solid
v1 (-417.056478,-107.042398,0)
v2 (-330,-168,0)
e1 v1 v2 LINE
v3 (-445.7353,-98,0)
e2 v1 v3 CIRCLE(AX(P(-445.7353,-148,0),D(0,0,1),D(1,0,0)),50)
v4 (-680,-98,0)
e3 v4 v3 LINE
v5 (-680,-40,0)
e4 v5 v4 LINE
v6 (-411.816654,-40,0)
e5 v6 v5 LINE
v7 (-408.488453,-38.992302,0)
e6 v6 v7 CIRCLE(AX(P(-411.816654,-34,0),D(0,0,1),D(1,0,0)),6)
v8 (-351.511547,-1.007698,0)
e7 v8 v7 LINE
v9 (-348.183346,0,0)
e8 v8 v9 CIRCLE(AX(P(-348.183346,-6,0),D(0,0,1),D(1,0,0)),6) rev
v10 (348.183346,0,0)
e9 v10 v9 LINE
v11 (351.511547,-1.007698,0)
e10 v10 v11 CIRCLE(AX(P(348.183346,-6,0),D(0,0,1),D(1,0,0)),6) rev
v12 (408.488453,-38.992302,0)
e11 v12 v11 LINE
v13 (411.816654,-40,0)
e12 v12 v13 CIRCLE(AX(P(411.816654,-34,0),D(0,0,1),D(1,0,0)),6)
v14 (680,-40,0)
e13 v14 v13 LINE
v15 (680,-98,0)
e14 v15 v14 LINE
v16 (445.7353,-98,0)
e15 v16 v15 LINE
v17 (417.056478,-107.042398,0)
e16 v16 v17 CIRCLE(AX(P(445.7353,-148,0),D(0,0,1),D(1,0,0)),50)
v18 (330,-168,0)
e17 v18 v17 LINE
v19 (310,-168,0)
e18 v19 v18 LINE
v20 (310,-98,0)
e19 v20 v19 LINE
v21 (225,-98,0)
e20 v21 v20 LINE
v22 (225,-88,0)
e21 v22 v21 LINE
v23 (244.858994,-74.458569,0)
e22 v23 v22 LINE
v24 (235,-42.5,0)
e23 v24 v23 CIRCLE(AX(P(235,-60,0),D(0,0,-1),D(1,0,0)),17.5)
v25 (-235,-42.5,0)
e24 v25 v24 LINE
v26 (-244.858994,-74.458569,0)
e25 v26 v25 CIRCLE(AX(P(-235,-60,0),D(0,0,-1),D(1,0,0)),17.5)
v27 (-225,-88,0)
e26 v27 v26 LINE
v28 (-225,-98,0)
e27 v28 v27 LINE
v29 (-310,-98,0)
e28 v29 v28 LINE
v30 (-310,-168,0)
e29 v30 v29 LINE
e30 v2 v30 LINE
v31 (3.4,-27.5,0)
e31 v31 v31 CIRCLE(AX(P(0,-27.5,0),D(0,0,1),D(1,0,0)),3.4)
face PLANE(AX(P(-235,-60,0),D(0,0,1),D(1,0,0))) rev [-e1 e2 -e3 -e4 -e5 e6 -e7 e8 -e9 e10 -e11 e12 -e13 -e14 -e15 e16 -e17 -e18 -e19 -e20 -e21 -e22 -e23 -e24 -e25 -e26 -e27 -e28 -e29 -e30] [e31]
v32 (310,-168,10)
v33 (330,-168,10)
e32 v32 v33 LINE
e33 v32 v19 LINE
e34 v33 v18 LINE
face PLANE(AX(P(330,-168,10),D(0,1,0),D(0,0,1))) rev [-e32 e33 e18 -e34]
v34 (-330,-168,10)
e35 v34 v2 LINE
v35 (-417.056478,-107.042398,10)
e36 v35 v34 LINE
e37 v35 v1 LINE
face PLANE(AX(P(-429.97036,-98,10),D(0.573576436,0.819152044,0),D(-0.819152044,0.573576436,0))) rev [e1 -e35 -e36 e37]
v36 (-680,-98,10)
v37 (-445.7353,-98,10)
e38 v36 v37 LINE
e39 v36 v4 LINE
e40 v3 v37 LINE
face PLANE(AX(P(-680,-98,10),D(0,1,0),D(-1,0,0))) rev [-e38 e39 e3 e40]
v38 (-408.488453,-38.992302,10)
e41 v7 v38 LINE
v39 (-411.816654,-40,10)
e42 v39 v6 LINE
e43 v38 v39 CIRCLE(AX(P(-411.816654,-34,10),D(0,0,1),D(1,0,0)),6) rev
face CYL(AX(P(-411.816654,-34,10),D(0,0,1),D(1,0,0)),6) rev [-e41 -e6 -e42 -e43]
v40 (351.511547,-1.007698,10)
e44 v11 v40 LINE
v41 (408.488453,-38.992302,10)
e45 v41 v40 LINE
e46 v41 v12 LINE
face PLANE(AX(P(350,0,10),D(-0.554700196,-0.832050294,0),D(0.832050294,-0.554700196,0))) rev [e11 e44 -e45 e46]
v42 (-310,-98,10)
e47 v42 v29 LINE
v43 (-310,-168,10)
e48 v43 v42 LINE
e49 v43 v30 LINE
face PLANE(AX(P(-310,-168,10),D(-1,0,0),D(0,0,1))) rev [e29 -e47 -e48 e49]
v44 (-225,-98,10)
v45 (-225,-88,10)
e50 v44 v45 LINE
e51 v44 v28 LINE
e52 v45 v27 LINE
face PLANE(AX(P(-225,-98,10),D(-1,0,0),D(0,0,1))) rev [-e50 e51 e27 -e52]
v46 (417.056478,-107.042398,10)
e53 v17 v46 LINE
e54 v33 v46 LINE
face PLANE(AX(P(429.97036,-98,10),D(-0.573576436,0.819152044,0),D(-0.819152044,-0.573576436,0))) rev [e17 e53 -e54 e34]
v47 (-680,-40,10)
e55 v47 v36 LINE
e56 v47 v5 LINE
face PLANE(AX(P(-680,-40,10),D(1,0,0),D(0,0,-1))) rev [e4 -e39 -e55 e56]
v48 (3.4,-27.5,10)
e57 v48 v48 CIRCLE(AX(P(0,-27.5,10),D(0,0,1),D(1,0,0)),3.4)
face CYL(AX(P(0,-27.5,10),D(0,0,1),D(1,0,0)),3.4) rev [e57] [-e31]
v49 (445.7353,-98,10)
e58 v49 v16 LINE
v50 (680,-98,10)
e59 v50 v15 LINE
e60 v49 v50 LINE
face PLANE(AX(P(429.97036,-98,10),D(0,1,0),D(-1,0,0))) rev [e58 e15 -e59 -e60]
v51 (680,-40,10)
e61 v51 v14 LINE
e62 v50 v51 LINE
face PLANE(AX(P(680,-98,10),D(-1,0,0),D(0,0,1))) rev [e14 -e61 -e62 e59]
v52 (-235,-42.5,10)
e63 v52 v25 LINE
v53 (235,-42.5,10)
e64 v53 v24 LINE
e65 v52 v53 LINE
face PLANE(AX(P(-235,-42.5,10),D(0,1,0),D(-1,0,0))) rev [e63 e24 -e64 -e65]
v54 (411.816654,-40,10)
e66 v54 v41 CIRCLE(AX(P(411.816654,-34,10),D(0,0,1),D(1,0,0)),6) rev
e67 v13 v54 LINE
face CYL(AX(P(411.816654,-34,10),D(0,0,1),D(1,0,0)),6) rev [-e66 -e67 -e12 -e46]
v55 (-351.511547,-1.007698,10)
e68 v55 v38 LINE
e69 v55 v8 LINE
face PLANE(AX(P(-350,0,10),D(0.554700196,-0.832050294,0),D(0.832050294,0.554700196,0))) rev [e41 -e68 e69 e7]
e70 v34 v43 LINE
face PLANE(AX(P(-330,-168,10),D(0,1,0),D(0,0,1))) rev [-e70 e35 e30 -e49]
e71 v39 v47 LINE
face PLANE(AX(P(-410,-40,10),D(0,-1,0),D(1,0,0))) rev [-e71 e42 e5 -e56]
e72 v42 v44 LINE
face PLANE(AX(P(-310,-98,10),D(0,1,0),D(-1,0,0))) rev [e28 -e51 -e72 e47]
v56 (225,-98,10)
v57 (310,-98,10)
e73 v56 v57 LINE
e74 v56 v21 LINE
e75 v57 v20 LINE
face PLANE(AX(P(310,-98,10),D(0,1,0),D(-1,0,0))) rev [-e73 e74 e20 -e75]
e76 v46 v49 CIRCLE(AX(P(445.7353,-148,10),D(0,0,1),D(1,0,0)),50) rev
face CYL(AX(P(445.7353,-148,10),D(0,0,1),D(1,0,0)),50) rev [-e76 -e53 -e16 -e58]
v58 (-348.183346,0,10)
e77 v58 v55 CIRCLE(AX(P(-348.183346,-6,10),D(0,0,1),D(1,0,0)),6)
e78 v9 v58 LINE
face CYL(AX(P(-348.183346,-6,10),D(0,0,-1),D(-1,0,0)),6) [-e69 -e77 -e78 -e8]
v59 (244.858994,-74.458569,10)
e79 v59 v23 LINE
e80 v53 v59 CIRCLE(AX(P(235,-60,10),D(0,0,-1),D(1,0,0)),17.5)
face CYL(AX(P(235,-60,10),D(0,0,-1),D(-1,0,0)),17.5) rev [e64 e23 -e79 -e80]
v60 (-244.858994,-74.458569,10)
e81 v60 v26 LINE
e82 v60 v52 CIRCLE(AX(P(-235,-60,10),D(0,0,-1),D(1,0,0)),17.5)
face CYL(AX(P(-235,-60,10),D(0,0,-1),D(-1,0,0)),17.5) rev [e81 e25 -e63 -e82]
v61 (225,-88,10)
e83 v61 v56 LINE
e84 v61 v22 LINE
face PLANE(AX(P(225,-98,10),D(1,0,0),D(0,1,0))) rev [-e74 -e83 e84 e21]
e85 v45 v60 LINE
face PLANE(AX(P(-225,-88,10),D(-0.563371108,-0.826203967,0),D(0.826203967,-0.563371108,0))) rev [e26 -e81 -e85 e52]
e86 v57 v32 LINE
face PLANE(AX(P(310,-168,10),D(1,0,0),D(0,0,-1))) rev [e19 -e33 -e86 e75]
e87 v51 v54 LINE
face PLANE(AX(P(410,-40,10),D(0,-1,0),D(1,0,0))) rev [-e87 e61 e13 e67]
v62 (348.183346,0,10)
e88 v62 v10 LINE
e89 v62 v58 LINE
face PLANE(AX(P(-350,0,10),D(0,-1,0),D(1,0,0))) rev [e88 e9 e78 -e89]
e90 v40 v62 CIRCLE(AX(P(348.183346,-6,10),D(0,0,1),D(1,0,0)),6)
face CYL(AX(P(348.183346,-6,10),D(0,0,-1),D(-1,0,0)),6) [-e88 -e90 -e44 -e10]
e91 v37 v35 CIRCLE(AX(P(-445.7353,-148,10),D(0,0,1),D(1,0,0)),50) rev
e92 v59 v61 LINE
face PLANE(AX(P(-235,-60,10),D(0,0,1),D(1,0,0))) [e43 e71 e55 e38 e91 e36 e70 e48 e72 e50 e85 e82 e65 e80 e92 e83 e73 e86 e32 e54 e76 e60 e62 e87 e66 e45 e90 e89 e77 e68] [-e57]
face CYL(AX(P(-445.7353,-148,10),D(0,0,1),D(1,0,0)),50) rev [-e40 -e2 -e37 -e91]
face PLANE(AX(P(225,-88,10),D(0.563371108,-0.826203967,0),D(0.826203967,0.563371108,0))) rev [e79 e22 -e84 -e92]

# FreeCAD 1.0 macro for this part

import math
import FreeCAD as App
import Part
import Sketcher
Q = App.Units.Quantity


def edges_at(feature, points):
    """Names of the edges that pass closest to the given points."""
    edges = feature.Shape.Edges
    near = lambda p: min(range(len(edges)), key=lambda i: edges[i].distToShape(Part.Vertex(*p))[0])
    return sorted({f"Edge{near(p) + 1}" for p in points})

doc = App.newDocument("Part")
body = doc.addObject("PartDesign::Body", "Body")

# Sketch on XY plane
sketch1 = body.newObject("Sketcher::SketchObject", "Sketch")
sketch1.AttachmentSupport = (doc.getObject("XY_Plane"), [""])
sketch1.MapMode = "FlatFace"
sketch1.addGeometry(Part.LineSegment(App.Vector(350, 0, 0), App.Vector(-350, 0, 0)), False)
sketch1.addGeometry(Part.LineSegment(App.Vector(-350, 0, 0), App.Vector(-410, -40, 0)), False)
sketch1.addGeometry(Part.LineSegment(App.Vector(-410, -40, 0), App.Vector(-680, -40, 0)), False)
sketch1.addGeometry(Part.LineSegment(App.Vector(-680, -40, 0), App.Vector(-680, -98, 0)), False)
sketch1.addGeometry(Part.LineSegment(App.Vector(-680, -98, 0), App.Vector(-429.97036, -98, 0)), False)
sketch1.addGeometry(Part.LineSegment(App.Vector(-429.97036, -98, 0), App.Vector(-330, -168, 0)), False)
sketch1.addGeometry(Part.LineSegment(App.Vector(-330, -168, 0), App.Vector(-310, -168, 0)), False)
sketch1.addGeometry(Part.LineSegment(App.Vector(-310, -168, 0), App.Vector(-310, -98, 0)), False)
sketch1.addGeometry(Part.LineSegment(App.Vector(-310, -98, 0), App.Vector(-225, -98, 0)), False)
sketch1.addGeometry(Part.LineSegment(App.Vector(-225, -98, 0), App.Vector(-225, -88, 0)), False)
sketch1.addGeometry(Part.LineSegment(App.Vector(-225, -88, 0), App.Vector(-244.858994, -74.458569, 0)), False)
sketch1.addGeometry(Part.ArcOfCircle(Part.Circle(App.Vector(-235, -60, 0), App.Vector(0, 0, 1), 17.5), math.radians(90), math.radians(235.710746)), False)
sketch1.addGeometry(Part.LineSegment(App.Vector(-235, -42.5, 0), App.Vector(235, -42.5, 0)), False)
sketch1.addGeometry(Part.ArcOfCircle(Part.Circle(App.Vector(235, -60, 0), App.Vector(0, 0, 1), 17.5), math.radians(-55.710746), math.radians(90)), False)
sketch1.addGeometry(Part.LineSegment(App.Vector(244.858994, -74.458569, 0), App.Vector(225, -88, 0)), False)
sketch1.addGeometry(Part.LineSegment(App.Vector(225, -88, 0), App.Vector(225, -98, 0)), False)
sketch1.addGeometry(Part.LineSegment(App.Vector(225, -98, 0), App.Vector(310, -98, 0)), False)
sketch1.addGeometry(Part.LineSegment(App.Vector(310, -98, 0), App.Vector(310, -168, 0)), False)
sketch1.addGeometry(Part.LineSegment(App.Vector(310, -168, 0), App.Vector(330, -168, 0)), False)
sketch1.addGeometry(Part.LineSegment(App.Vector(330, -168, 0), App.Vector(429.97036, -98, 0)), False)
sketch1.addGeometry(Part.LineSegment(App.Vector(429.97036, -98, 0), App.Vector(680, -98, 0)), False)
sketch1.addGeometry(Part.LineSegment(App.Vector(680, -98, 0), App.Vector(680, -40, 0)), False)
sketch1.addGeometry(Part.LineSegment(App.Vector(680, -40, 0), App.Vector(410, -40, 0)), False)
sketch1.addGeometry(Part.LineSegment(App.Vector(410, -40, 0), App.Vector(350, 0, 0)), False)
sketch1.addConstraint(Sketcher.Constraint("Coincident", 0, 2, 1, 1))
sketch1.addConstraint(Sketcher.Constraint("Coincident", 1, 2, 2, 1))
sketch1.addConstraint(Sketcher.Constraint("Coincident", 2, 2, 3, 1))
sketch1.addConstraint(Sketcher.Constraint("Coincident", 3, 2, 4, 1))
sketch1.addConstraint(Sketcher.Constraint("Coincident", 4, 2, 5, 1))
sketch1.addConstraint(Sketcher.Constraint("Coincident", 5, 2, 6, 1))
sketch1.addConstraint(Sketcher.Constraint("Coincident", 6, 2, 7, 1))
sketch1.addConstraint(Sketcher.Constraint("Coincident", 7, 2, 8, 1))
sketch1.addConstraint(Sketcher.Constraint("Coincident", 8, 2, 9, 1))
sketch1.addConstraint(Sketcher.Constraint("Coincident", 9, 2, 10, 1))
sketch1.addConstraint(Sketcher.Constraint("Tangent", 10, 2, 11, 2))
sketch1.addConstraint(Sketcher.Constraint("Tangent", 11, 1, 12, 1))
sketch1.addConstraint(Sketcher.Constraint("Tangent", 12, 2, 13, 2))
sketch1.addConstraint(Sketcher.Constraint("Tangent", 13, 1, 14, 1))
sketch1.addConstraint(Sketcher.Constraint("Coincident", 14, 2, 15, 1))
sketch1.addConstraint(Sketcher.Constraint("Coincident", 15, 2, 16, 1))
sketch1.addConstraint(Sketcher.Constraint("Coincident", 16, 2, 17, 1))
sketch1.addConstraint(Sketcher.Constraint("Coincident", 17, 2, 18, 1))
sketch1.addConstraint(Sketcher.Constraint("Coincident", 18, 2, 19, 1))
sketch1.addConstraint(Sketcher.Constraint("Coincident", 19, 2, 20, 1))
sketch1.addConstraint(Sketcher.Constraint("Coincident", 20, 2, 21, 1))
sketch1.addConstraint(Sketcher.Constraint("Coincident", 21, 2, 22, 1))
sketch1.addConstraint(Sketcher.Constraint("Coincident", 22, 2, 23, 1))
sketch1.addConstraint(Sketcher.Constraint("Coincident", 23, 2, 0, 1))
sketch1.addConstraint(Sketcher.Constraint("Horizontal", 0))
sketch1.addConstraint(Sketcher.Constraint("Horizontal", 2))
sketch1.addConstraint(Sketcher.Constraint("Vertical", 3))
sketch1.addConstraint(Sketcher.Constraint("Horizontal", 4))
sketch1.addConstraint(Sketcher.Constraint("Horizontal", 6))
sketch1.addConstraint(Sketcher.Constraint("Vertical", 7))
sketch1.addConstraint(Sketcher.Constraint("Horizontal", 8))
sketch1.addConstraint(Sketcher.Constraint("Vertical", 9))
sketch1.addConstraint(Sketcher.Constraint("Horizontal", 12))
sketch1.addConstraint(Sketcher.Constraint("Vertical", 15))
sketch1.addConstraint(Sketcher.Constraint("Horizontal", 16))
sketch1.addConstraint(Sketcher.Constraint("Vertical", 17))
sketch1.addConstraint(Sketcher.Constraint("Horizontal", 18))
sketch1.addConstraint(Sketcher.Constraint("Horizontal", 20))
sketch1.addConstraint(Sketcher.Constraint("Vertical", 21))
sketch1.addConstraint(Sketcher.Constraint("Horizontal", 22))
sketch1.addConstraint(Sketcher.Constraint("Equal", 11, 13))
sketch1.addConstraint(Sketcher.Constraint("Symmetric", 0, 2, 23, 2, -1, 1))
sketch1.addConstraint(Sketcher.Constraint("Symmetric", 10, 2, 13, 1, -2))
sketch1.addConstraint(Sketcher.Constraint("Symmetric", 8, 2, 15, 2, -2))
sketch1.addConstraint(Sketcher.Constraint("Symmetric", 6, 2, 17, 2, -2))
sketch1.addConstraint(Sketcher.Constraint("Symmetric", 4, 2, 19, 2, -2))
sketch1.addConstraint(Sketcher.Constraint("Symmetric", 2, 2, 21, 2, -2))
sketch1.addConstraint(Sketcher.Constraint("Horizontal", 4, 2, 7, 2))
sketch1.addConstraint(Sketcher.Constraint("Equal", 6, 18))
sketch1.addConstraint(Sketcher.Constraint("Equal", 2, 22))
sketch1.addConstraint(Sketcher.Constraint("Radius", 11, 17.5))
sketch1.addConstraint(Sketcher.Constraint("DistanceX", 0, 2, 0, 1, 700.0))
sketch1.addConstraint(Sketcher.Constraint("DistanceX", 2, 2, 2, 1, 270.0))
sketch1.addConstraint(Sketcher.Constraint("DistanceX", 6, 1, 6, 2, 20.0))
sketch1.addConstraint(Sketcher.Constraint("DistanceX", 8, 1, 8, 2, 85.0))
sketch1.addConstraint(Sketcher.Constraint("DistanceX", 12, 1, 12, 2, 470.0))
sketch1.addConstraint(Sketcher.Constraint("DistanceY", 3, 2, 3, 1, 58.0))
sketch1.addConstraint(Sketcher.Constraint("DistanceY", 7, 1, 7, 2, 70.0))
sketch1.addConstraint(Sketcher.Constraint("DistanceY", 9, 1, 9, 2, 10.0))
sketch1.addConstraint(Sketcher.Constraint("Angle", 5, Q("-35 deg")))
sketch1.addConstraint(Sketcher.Constraint("DistanceY", 11, 3, -1, 1, 60.0))
sketch1.addConstraint(Sketcher.Constraint("DistanceX", 1, 2, -1, 1, 410.0))
sketch1.addConstraint(Sketcher.Constraint("DistanceY", 1, 2, -1, 1, 40.0))
sketch1.addConstraint(Sketcher.Constraint("DistanceX", 5, 2, -1, 1, 330.0))
pad1 = body.newObject("PartDesign::Pad", "Pad")
pad1.Profile = sketch1
pad1.Length = 10
doc.recompute()

fillet = body.newObject("PartDesign::Fillet", "Fillet")
fillet.Base = (pad1, edges_at(pad1, [
    (-350, 0, 5),
    (350, 0, 5),
    (410, -40, 5),
    (-410, -40, 5),
]))
fillet.Radius = 6

# Sketch on XY plane
sketch2 = body.newObject("Sketcher::SketchObject", "Sketch001")
sketch2.AttachmentSupport = (doc.getObject("XY_Plane"), [""])
sketch2.MapMode = "FlatFace"
sketch2.AttachmentOffset = App.Placement(App.Vector(0, 0, 10), App.Rotation())
sketch2.addGeometry(Part.Circle(App.Vector(0, -27.5, 0), App.Vector(0, 0, 1), 3.4), False)
sketch2.addConstraint(Sketcher.Constraint("PointOnObject", 0, 3, -2))
sketch2.addConstraint(Sketcher.Constraint("Diameter", 0, 6.8))
sketch2.addConstraint(Sketcher.Constraint("DistanceY", 0, 3, -1, 1, 27.5))
doc.recompute()
hole = body.newObject("PartDesign::Hole", "Hole")
hole.Profile = sketch2
hole.ThreadType = "None"
hole.Diameter = 6.8
hole.DepthType = "Dimension"
hole.Depth = 19.75
hole.DrillPoint = "Angled"
hole.DrillPointAngle = 118
doc.recompute()

fillet2 = body.newObject("PartDesign::Fillet", "Fillet001")
fillet2.Base = (hole, edges_at(hole, [(429.97, -98, 5), (-429.97, -98, 5)]))
fillet2.Radius = 50

doc.recompute()
